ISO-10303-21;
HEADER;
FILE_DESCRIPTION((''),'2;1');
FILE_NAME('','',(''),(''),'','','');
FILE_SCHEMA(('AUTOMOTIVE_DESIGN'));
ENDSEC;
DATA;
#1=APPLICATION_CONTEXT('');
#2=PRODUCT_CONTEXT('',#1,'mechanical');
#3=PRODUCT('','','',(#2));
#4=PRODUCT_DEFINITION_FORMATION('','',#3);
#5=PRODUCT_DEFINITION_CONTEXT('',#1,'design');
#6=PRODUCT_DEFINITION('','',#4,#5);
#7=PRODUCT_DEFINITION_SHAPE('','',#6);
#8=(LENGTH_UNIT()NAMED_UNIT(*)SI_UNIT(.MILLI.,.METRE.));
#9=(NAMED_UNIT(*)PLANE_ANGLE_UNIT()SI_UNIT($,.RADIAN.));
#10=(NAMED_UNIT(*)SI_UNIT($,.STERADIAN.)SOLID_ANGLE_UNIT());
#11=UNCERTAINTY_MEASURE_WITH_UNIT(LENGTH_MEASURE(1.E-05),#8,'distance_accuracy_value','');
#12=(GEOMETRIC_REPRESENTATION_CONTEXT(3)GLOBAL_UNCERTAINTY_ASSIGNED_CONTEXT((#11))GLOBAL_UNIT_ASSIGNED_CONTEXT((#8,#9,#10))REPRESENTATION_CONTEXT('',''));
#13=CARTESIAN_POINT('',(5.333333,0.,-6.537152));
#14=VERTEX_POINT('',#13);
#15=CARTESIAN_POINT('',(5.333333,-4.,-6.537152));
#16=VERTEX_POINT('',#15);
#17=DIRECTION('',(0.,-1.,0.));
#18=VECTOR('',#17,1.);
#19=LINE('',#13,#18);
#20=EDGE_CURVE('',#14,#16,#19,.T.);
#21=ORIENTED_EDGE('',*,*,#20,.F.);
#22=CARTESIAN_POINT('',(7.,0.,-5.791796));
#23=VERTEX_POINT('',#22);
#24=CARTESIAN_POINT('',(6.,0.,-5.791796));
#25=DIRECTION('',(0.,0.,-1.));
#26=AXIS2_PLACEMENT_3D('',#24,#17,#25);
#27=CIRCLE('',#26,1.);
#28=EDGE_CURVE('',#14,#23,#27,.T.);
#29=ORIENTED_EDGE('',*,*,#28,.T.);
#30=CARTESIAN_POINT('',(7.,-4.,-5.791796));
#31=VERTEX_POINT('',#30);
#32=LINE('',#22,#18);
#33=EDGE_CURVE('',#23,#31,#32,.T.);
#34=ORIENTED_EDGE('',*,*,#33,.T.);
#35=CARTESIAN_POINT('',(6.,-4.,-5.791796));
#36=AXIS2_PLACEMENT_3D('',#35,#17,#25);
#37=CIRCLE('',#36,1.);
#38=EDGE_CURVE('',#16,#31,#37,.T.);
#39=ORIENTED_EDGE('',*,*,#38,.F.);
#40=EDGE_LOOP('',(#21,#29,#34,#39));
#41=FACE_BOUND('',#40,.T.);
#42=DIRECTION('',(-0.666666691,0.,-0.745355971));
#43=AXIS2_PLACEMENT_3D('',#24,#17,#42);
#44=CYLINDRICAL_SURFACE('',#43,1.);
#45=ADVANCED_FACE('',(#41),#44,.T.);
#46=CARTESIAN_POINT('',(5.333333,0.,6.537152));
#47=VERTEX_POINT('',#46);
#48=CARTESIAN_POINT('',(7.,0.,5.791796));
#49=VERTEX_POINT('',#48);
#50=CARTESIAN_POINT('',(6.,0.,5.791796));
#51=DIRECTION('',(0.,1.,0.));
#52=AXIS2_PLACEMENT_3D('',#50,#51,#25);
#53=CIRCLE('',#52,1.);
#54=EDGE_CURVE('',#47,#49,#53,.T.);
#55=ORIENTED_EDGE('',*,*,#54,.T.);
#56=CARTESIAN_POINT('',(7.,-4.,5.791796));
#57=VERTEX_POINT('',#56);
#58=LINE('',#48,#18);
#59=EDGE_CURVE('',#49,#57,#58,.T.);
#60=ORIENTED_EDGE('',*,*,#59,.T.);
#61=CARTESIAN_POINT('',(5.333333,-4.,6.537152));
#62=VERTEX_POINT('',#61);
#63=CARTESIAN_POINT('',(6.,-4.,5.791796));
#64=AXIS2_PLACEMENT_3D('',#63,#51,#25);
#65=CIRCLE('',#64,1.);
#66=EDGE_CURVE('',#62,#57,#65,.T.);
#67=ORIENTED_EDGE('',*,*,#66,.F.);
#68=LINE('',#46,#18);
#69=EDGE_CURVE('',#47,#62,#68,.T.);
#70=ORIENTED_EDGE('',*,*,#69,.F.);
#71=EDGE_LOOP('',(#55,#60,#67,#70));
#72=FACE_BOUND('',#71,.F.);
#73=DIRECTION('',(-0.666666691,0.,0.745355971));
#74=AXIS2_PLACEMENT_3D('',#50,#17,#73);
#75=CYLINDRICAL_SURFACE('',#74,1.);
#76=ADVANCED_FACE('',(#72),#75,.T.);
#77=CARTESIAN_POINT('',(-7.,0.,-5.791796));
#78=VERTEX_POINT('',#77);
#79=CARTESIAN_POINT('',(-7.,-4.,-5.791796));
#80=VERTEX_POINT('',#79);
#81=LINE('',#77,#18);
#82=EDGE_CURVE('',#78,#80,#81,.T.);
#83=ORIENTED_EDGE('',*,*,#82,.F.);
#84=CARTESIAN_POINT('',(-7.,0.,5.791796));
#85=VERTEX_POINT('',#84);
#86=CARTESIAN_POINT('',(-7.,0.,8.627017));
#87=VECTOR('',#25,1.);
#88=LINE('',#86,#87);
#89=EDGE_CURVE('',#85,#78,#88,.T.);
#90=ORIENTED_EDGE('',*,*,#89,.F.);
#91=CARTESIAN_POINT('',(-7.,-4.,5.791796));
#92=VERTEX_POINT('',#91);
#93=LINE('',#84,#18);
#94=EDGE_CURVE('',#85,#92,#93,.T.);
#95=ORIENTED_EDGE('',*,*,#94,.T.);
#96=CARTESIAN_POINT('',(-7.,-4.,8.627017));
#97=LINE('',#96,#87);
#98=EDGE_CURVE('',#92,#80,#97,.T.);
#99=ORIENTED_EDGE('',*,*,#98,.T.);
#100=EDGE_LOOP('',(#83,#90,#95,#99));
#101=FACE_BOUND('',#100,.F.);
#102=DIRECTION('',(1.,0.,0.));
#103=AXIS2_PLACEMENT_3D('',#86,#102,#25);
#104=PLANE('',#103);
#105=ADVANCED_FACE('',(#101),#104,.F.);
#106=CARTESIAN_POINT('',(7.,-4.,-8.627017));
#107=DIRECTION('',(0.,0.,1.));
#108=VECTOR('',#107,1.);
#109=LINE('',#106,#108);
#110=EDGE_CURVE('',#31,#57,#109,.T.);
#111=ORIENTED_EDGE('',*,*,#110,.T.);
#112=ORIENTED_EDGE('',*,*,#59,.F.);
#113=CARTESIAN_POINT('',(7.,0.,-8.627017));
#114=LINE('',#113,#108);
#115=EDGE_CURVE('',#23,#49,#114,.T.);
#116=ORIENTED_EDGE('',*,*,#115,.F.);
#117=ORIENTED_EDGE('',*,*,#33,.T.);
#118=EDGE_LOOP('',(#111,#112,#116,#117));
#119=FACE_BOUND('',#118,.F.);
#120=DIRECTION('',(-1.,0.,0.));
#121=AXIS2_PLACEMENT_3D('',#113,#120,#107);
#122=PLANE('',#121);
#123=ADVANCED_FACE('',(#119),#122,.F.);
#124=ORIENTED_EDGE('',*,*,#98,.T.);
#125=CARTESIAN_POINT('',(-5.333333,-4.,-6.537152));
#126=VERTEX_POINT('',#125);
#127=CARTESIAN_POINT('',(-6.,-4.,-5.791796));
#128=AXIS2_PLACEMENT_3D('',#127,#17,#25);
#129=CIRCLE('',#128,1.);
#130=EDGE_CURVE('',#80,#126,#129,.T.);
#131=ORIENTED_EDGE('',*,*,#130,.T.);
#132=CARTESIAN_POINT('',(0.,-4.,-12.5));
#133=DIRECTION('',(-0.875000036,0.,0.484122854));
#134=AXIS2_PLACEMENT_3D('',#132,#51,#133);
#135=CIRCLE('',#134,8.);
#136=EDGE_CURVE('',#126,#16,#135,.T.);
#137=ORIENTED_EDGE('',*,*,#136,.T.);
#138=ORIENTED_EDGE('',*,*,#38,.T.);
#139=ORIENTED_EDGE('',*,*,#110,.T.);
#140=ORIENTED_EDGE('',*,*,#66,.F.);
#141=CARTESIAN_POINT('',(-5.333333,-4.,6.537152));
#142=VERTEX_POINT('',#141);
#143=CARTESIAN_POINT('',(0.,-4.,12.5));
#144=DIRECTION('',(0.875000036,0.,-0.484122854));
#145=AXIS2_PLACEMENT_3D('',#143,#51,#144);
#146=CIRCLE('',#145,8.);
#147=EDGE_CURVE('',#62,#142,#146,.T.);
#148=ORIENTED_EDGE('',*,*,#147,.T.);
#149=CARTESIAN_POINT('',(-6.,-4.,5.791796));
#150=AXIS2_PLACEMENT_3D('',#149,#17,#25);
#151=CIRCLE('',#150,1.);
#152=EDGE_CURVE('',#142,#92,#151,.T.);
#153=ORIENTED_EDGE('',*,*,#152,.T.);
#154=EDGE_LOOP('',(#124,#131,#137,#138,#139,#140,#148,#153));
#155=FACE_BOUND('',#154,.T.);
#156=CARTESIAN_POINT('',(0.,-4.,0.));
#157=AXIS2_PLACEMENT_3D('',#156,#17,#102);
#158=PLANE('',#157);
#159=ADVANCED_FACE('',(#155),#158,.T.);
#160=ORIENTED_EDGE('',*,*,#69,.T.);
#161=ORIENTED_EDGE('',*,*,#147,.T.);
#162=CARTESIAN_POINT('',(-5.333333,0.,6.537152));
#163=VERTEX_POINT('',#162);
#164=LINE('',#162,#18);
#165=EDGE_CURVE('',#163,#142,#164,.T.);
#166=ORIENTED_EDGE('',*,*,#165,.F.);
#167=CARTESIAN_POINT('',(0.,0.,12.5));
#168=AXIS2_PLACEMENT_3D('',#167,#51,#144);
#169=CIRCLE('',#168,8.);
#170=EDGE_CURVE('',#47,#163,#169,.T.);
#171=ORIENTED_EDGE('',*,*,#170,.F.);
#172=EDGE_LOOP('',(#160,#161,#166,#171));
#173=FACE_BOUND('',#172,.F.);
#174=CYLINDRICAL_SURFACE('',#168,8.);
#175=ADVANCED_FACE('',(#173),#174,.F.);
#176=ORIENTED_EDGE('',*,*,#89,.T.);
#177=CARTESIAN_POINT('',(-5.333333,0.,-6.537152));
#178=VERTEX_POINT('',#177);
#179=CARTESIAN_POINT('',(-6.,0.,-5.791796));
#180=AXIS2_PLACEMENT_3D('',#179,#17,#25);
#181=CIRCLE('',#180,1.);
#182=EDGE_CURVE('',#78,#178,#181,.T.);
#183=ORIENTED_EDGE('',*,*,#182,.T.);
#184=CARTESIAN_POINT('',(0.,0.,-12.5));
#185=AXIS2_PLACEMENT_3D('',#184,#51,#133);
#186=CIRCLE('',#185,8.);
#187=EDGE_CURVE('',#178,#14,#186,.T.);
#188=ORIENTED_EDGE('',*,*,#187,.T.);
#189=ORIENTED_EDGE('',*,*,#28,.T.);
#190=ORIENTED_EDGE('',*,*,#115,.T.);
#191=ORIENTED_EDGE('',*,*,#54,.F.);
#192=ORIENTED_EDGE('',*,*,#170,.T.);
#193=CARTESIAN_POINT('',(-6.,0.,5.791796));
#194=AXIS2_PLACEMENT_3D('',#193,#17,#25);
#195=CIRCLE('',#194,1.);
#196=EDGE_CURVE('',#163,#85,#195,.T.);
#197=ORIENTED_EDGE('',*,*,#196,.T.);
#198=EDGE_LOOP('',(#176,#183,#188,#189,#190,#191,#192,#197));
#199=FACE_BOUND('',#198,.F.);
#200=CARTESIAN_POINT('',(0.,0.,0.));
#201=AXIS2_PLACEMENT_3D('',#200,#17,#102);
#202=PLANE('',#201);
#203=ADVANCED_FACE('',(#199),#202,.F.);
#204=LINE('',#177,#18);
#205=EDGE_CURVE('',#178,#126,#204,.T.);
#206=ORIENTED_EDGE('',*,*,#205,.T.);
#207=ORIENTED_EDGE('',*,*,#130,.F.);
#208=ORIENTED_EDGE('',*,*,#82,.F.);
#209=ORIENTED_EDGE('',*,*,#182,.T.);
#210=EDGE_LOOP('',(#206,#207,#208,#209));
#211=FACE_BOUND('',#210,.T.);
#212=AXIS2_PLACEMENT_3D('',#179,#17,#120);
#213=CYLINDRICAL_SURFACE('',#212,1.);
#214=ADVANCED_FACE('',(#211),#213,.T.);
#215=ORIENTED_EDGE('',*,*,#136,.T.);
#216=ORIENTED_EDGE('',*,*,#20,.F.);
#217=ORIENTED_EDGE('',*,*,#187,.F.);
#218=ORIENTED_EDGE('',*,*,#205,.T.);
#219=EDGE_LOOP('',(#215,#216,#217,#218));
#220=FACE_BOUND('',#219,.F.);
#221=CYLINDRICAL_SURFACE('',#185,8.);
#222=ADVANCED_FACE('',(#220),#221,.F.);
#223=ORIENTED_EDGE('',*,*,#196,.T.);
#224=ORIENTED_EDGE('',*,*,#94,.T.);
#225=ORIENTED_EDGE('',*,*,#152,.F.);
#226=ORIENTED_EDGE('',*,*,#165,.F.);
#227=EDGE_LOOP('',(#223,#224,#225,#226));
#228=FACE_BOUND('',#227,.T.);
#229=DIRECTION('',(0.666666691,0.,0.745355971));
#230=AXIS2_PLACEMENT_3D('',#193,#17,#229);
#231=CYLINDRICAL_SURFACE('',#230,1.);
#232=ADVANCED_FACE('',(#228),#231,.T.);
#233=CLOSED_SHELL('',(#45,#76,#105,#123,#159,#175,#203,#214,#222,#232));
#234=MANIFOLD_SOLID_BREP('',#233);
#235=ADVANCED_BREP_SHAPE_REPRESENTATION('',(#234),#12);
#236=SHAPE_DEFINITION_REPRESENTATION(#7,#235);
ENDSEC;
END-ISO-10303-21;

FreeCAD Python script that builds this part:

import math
import FreeCAD as App
import Part
import Sketcher
from FreeCAD import Vector
Q = App.Units.Quantity


def edges_at(feature, points):
    """Names of the edges that pass closest to the given points."""
    edges = feature.Shape.Edges
    near = lambda p: min(range(len(edges)), key=lambda i: edges[i].distToShape(Part.Vertex(*p))[0])
    return sorted({f"Edge{near(p) + 1}" for p in points})

doc = App.newDocument("Part")
body = doc.addObject("PartDesign::Body", "Body")

# Sketch on XZ plane
sketch1 = body.newObject("Sketcher::SketchObject", "Sketch")
sketch1.AttachmentSupport = (doc.getObject("XZ_Plane"), [""])
sketch1.MapMode = "FlatFace"
sketch1.addGeometry(Part.ArcOfCircle(Part.Circle(Vector(0, 12, 0), Vector(0, 0, 1), 8), math.radians(-151), math.radians(-29)), False)
sketch1.addGeometry(Part.LineSegment(Vector(-7, 9, 0), Vector(-7, -9, 0)), False)
sketch1.addGeometry(Part.ArcOfCircle(Part.Circle(Vector(0, -12, 0), Vector(0, 0, 1), 8), math.radians(29), math.radians(151)), False)
sketch1.addGeometry(Part.LineSegment(Vector(7, -9, 0), Vector(7, 9, 0)), False)
sketch1.addConstraint(Sketcher.Constraint("Coincident", 0, 1, 1, 1))
sketch1.addConstraint(Sketcher.Constraint("Coincident", 1, 2, 2, 2))
sketch1.addConstraint(Sketcher.Constraint("Coincident", 2, 1, 3, 1))
sketch1.addConstraint(Sketcher.Constraint("Coincident", 3, 2, 0, 2))
sketch1.addConstraint(Sketcher.Constraint("Vertical", 1))
sketch1.addConstraint(Sketcher.Constraint("Vertical", 3))
sketch1.addConstraint(Sketcher.Constraint("Equal", 0, 2))
sketch1.addConstraint(Sketcher.Constraint("Symmetric", 0, 3, 2, 3, -1, 1))
sketch1.addConstraint(Sketcher.Constraint("Symmetric", 1, 2, 2, 1, -2))
sketch1.addConstraint(Sketcher.Constraint("Radius", 0, Q("8 mm")))
sketch1.addConstraint(Sketcher.Constraint("DistanceX", 0, 1, -1, 1, Q("7 mm")))
sketch1.addConstraint(Sketcher.Constraint("DistanceY", 2, 3, 0, 3, Q("24.999999 mm")))
pad1 = body.newObject("PartDesign::Pad", "Pad")
pad1.Profile = sketch1
pad1.Length = 4
doc.recompute()

fillet = body.newObject("PartDesign::Fillet", "Fillet")
fillet.Base = (pad1, edges_at(pad1, [
    (-7, -2, -8.627),
    (7, -2, -8.627),
    (-7, -2, 8.627),
    (7, -2, 8.627),
]))
fillet.Radius = 1

doc.recompute()
